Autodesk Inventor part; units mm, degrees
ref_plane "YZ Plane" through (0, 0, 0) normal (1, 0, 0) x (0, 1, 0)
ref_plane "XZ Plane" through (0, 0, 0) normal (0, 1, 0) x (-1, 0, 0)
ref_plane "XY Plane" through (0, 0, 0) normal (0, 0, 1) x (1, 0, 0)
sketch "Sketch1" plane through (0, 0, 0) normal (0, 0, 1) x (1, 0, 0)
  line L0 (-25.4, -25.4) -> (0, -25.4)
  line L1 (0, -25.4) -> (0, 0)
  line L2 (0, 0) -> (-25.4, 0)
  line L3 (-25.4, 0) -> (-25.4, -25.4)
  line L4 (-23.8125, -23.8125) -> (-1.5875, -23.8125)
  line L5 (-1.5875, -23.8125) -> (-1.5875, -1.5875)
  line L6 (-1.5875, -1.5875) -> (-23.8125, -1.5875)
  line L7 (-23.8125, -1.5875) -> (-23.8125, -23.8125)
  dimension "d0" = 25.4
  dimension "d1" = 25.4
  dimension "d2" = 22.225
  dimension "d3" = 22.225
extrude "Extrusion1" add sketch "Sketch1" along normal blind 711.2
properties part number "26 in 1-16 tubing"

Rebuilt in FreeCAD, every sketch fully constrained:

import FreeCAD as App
import Part
import Sketcher
Q = App.Units.Quantity

doc = App.newDocument("Part")
body = doc.addObject("PartDesign::Body", "Body")

# Sketch on XY plane
sketch1 = body.newObject("Sketcher::SketchObject", "Sketch")
sketch1.AttachmentSupport = (doc.getObject("XY_Plane"), [""])
sketch1.MapMode = "FlatFace"
sketch1.addGeometry(Part.LineSegment(App.Vector(-25.4, 0, 0), App.Vector(-25.4, -25.4, 0)), False)
sketch1.addGeometry(Part.LineSegment(App.Vector(-25.4, -25.4, 0), App.Vector(0, -25.4, 0)), False)
sketch1.addGeometry(Part.LineSegment(App.Vector(0, -25.4, 0), App.Vector(0, 0, 0)), False)
sketch1.addGeometry(Part.LineSegment(App.Vector(0, 0, 0), App.Vector(-25.4, 0, 0)), False)
sketch1.addGeometry(Part.LineSegment(App.Vector(-1.5875, -23.8125, 0), App.Vector(-23.8125, -23.8125, 0)), False)
sketch1.addGeometry(Part.LineSegment(App.Vector(-23.8125, -23.8125, 0), App.Vector(-23.8125, -1.5875, 0)), False)
sketch1.addGeometry(Part.LineSegment(App.Vector(-23.8125, -1.5875, 0), App.Vector(-1.5875, -1.5875, 0)), False)
sketch1.addGeometry(Part.LineSegment(App.Vector(-1.5875, -1.5875, 0), App.Vector(-1.5875, -23.8125, 0)), False)
sketch1.addConstraint(Sketcher.Constraint("Coincident", 0, 2, 1, 1))
sketch1.addConstraint(Sketcher.Constraint("Coincident", 1, 2, 2, 1))
sketch1.addConstraint(Sketcher.Constraint("Coincident", 2, 2, 3, 1))
sketch1.addConstraint(Sketcher.Constraint("Coincident", 3, 2, 0, 1))
sketch1.addConstraint(Sketcher.Constraint("Coincident", 4, 2, 5, 1))
sketch1.addConstraint(Sketcher.Constraint("Coincident", 5, 2, 6, 1))
sketch1.addConstraint(Sketcher.Constraint("Coincident", 6, 2, 7, 1))
sketch1.addConstraint(Sketcher.Constraint("Coincident", 7, 2, 4, 1))
sketch1.addConstraint(Sketcher.Constraint("Vertical", 0))
sketch1.addConstraint(Sketcher.Constraint("Horizontal", 1))
sketch1.addConstraint(Sketcher.Constraint("Vertical", 2))
sketch1.addConstraint(Sketcher.Constraint("Horizontal", 3))
sketch1.addConstraint(Sketcher.Constraint("Horizontal", 4))
sketch1.addConstraint(Sketcher.Constraint("Vertical", 5))
sketch1.addConstraint(Sketcher.Constraint("Horizontal", 6))
sketch1.addConstraint(Sketcher.Constraint("Vertical", 7))
sketch1.addConstraint(Sketcher.Constraint("Coincident", 2, 2, -1, 1))
sketch1.addConstraint(Sketcher.Constraint("Equal", 3, 0))
sketch1.addConstraint(Sketcher.Constraint("Equal", 6, 5))
sketch1.addConstraint(Sketcher.Constraint("DistanceX", 1, 1, 1, 2, Q("1 in")))
sketch1.addConstraint(Sketcher.Constraint("DistanceX", 4, 2, 4, 1, Q("0.875 in")))
sketch1.addConstraint(Sketcher.Constraint("DistanceX", 4, 2, -1, 1, Q("0.9375 in")))
sketch1.addConstraint(Sketcher.Constraint("DistanceY", 4, 2, -1, 1, Q("0.9375 in")))
pad1 = body.newObject("PartDesign::Pad", "Pad")
pad1.Profile = sketch1
pad1.Length = Q("28 in")

doc.recompute()
